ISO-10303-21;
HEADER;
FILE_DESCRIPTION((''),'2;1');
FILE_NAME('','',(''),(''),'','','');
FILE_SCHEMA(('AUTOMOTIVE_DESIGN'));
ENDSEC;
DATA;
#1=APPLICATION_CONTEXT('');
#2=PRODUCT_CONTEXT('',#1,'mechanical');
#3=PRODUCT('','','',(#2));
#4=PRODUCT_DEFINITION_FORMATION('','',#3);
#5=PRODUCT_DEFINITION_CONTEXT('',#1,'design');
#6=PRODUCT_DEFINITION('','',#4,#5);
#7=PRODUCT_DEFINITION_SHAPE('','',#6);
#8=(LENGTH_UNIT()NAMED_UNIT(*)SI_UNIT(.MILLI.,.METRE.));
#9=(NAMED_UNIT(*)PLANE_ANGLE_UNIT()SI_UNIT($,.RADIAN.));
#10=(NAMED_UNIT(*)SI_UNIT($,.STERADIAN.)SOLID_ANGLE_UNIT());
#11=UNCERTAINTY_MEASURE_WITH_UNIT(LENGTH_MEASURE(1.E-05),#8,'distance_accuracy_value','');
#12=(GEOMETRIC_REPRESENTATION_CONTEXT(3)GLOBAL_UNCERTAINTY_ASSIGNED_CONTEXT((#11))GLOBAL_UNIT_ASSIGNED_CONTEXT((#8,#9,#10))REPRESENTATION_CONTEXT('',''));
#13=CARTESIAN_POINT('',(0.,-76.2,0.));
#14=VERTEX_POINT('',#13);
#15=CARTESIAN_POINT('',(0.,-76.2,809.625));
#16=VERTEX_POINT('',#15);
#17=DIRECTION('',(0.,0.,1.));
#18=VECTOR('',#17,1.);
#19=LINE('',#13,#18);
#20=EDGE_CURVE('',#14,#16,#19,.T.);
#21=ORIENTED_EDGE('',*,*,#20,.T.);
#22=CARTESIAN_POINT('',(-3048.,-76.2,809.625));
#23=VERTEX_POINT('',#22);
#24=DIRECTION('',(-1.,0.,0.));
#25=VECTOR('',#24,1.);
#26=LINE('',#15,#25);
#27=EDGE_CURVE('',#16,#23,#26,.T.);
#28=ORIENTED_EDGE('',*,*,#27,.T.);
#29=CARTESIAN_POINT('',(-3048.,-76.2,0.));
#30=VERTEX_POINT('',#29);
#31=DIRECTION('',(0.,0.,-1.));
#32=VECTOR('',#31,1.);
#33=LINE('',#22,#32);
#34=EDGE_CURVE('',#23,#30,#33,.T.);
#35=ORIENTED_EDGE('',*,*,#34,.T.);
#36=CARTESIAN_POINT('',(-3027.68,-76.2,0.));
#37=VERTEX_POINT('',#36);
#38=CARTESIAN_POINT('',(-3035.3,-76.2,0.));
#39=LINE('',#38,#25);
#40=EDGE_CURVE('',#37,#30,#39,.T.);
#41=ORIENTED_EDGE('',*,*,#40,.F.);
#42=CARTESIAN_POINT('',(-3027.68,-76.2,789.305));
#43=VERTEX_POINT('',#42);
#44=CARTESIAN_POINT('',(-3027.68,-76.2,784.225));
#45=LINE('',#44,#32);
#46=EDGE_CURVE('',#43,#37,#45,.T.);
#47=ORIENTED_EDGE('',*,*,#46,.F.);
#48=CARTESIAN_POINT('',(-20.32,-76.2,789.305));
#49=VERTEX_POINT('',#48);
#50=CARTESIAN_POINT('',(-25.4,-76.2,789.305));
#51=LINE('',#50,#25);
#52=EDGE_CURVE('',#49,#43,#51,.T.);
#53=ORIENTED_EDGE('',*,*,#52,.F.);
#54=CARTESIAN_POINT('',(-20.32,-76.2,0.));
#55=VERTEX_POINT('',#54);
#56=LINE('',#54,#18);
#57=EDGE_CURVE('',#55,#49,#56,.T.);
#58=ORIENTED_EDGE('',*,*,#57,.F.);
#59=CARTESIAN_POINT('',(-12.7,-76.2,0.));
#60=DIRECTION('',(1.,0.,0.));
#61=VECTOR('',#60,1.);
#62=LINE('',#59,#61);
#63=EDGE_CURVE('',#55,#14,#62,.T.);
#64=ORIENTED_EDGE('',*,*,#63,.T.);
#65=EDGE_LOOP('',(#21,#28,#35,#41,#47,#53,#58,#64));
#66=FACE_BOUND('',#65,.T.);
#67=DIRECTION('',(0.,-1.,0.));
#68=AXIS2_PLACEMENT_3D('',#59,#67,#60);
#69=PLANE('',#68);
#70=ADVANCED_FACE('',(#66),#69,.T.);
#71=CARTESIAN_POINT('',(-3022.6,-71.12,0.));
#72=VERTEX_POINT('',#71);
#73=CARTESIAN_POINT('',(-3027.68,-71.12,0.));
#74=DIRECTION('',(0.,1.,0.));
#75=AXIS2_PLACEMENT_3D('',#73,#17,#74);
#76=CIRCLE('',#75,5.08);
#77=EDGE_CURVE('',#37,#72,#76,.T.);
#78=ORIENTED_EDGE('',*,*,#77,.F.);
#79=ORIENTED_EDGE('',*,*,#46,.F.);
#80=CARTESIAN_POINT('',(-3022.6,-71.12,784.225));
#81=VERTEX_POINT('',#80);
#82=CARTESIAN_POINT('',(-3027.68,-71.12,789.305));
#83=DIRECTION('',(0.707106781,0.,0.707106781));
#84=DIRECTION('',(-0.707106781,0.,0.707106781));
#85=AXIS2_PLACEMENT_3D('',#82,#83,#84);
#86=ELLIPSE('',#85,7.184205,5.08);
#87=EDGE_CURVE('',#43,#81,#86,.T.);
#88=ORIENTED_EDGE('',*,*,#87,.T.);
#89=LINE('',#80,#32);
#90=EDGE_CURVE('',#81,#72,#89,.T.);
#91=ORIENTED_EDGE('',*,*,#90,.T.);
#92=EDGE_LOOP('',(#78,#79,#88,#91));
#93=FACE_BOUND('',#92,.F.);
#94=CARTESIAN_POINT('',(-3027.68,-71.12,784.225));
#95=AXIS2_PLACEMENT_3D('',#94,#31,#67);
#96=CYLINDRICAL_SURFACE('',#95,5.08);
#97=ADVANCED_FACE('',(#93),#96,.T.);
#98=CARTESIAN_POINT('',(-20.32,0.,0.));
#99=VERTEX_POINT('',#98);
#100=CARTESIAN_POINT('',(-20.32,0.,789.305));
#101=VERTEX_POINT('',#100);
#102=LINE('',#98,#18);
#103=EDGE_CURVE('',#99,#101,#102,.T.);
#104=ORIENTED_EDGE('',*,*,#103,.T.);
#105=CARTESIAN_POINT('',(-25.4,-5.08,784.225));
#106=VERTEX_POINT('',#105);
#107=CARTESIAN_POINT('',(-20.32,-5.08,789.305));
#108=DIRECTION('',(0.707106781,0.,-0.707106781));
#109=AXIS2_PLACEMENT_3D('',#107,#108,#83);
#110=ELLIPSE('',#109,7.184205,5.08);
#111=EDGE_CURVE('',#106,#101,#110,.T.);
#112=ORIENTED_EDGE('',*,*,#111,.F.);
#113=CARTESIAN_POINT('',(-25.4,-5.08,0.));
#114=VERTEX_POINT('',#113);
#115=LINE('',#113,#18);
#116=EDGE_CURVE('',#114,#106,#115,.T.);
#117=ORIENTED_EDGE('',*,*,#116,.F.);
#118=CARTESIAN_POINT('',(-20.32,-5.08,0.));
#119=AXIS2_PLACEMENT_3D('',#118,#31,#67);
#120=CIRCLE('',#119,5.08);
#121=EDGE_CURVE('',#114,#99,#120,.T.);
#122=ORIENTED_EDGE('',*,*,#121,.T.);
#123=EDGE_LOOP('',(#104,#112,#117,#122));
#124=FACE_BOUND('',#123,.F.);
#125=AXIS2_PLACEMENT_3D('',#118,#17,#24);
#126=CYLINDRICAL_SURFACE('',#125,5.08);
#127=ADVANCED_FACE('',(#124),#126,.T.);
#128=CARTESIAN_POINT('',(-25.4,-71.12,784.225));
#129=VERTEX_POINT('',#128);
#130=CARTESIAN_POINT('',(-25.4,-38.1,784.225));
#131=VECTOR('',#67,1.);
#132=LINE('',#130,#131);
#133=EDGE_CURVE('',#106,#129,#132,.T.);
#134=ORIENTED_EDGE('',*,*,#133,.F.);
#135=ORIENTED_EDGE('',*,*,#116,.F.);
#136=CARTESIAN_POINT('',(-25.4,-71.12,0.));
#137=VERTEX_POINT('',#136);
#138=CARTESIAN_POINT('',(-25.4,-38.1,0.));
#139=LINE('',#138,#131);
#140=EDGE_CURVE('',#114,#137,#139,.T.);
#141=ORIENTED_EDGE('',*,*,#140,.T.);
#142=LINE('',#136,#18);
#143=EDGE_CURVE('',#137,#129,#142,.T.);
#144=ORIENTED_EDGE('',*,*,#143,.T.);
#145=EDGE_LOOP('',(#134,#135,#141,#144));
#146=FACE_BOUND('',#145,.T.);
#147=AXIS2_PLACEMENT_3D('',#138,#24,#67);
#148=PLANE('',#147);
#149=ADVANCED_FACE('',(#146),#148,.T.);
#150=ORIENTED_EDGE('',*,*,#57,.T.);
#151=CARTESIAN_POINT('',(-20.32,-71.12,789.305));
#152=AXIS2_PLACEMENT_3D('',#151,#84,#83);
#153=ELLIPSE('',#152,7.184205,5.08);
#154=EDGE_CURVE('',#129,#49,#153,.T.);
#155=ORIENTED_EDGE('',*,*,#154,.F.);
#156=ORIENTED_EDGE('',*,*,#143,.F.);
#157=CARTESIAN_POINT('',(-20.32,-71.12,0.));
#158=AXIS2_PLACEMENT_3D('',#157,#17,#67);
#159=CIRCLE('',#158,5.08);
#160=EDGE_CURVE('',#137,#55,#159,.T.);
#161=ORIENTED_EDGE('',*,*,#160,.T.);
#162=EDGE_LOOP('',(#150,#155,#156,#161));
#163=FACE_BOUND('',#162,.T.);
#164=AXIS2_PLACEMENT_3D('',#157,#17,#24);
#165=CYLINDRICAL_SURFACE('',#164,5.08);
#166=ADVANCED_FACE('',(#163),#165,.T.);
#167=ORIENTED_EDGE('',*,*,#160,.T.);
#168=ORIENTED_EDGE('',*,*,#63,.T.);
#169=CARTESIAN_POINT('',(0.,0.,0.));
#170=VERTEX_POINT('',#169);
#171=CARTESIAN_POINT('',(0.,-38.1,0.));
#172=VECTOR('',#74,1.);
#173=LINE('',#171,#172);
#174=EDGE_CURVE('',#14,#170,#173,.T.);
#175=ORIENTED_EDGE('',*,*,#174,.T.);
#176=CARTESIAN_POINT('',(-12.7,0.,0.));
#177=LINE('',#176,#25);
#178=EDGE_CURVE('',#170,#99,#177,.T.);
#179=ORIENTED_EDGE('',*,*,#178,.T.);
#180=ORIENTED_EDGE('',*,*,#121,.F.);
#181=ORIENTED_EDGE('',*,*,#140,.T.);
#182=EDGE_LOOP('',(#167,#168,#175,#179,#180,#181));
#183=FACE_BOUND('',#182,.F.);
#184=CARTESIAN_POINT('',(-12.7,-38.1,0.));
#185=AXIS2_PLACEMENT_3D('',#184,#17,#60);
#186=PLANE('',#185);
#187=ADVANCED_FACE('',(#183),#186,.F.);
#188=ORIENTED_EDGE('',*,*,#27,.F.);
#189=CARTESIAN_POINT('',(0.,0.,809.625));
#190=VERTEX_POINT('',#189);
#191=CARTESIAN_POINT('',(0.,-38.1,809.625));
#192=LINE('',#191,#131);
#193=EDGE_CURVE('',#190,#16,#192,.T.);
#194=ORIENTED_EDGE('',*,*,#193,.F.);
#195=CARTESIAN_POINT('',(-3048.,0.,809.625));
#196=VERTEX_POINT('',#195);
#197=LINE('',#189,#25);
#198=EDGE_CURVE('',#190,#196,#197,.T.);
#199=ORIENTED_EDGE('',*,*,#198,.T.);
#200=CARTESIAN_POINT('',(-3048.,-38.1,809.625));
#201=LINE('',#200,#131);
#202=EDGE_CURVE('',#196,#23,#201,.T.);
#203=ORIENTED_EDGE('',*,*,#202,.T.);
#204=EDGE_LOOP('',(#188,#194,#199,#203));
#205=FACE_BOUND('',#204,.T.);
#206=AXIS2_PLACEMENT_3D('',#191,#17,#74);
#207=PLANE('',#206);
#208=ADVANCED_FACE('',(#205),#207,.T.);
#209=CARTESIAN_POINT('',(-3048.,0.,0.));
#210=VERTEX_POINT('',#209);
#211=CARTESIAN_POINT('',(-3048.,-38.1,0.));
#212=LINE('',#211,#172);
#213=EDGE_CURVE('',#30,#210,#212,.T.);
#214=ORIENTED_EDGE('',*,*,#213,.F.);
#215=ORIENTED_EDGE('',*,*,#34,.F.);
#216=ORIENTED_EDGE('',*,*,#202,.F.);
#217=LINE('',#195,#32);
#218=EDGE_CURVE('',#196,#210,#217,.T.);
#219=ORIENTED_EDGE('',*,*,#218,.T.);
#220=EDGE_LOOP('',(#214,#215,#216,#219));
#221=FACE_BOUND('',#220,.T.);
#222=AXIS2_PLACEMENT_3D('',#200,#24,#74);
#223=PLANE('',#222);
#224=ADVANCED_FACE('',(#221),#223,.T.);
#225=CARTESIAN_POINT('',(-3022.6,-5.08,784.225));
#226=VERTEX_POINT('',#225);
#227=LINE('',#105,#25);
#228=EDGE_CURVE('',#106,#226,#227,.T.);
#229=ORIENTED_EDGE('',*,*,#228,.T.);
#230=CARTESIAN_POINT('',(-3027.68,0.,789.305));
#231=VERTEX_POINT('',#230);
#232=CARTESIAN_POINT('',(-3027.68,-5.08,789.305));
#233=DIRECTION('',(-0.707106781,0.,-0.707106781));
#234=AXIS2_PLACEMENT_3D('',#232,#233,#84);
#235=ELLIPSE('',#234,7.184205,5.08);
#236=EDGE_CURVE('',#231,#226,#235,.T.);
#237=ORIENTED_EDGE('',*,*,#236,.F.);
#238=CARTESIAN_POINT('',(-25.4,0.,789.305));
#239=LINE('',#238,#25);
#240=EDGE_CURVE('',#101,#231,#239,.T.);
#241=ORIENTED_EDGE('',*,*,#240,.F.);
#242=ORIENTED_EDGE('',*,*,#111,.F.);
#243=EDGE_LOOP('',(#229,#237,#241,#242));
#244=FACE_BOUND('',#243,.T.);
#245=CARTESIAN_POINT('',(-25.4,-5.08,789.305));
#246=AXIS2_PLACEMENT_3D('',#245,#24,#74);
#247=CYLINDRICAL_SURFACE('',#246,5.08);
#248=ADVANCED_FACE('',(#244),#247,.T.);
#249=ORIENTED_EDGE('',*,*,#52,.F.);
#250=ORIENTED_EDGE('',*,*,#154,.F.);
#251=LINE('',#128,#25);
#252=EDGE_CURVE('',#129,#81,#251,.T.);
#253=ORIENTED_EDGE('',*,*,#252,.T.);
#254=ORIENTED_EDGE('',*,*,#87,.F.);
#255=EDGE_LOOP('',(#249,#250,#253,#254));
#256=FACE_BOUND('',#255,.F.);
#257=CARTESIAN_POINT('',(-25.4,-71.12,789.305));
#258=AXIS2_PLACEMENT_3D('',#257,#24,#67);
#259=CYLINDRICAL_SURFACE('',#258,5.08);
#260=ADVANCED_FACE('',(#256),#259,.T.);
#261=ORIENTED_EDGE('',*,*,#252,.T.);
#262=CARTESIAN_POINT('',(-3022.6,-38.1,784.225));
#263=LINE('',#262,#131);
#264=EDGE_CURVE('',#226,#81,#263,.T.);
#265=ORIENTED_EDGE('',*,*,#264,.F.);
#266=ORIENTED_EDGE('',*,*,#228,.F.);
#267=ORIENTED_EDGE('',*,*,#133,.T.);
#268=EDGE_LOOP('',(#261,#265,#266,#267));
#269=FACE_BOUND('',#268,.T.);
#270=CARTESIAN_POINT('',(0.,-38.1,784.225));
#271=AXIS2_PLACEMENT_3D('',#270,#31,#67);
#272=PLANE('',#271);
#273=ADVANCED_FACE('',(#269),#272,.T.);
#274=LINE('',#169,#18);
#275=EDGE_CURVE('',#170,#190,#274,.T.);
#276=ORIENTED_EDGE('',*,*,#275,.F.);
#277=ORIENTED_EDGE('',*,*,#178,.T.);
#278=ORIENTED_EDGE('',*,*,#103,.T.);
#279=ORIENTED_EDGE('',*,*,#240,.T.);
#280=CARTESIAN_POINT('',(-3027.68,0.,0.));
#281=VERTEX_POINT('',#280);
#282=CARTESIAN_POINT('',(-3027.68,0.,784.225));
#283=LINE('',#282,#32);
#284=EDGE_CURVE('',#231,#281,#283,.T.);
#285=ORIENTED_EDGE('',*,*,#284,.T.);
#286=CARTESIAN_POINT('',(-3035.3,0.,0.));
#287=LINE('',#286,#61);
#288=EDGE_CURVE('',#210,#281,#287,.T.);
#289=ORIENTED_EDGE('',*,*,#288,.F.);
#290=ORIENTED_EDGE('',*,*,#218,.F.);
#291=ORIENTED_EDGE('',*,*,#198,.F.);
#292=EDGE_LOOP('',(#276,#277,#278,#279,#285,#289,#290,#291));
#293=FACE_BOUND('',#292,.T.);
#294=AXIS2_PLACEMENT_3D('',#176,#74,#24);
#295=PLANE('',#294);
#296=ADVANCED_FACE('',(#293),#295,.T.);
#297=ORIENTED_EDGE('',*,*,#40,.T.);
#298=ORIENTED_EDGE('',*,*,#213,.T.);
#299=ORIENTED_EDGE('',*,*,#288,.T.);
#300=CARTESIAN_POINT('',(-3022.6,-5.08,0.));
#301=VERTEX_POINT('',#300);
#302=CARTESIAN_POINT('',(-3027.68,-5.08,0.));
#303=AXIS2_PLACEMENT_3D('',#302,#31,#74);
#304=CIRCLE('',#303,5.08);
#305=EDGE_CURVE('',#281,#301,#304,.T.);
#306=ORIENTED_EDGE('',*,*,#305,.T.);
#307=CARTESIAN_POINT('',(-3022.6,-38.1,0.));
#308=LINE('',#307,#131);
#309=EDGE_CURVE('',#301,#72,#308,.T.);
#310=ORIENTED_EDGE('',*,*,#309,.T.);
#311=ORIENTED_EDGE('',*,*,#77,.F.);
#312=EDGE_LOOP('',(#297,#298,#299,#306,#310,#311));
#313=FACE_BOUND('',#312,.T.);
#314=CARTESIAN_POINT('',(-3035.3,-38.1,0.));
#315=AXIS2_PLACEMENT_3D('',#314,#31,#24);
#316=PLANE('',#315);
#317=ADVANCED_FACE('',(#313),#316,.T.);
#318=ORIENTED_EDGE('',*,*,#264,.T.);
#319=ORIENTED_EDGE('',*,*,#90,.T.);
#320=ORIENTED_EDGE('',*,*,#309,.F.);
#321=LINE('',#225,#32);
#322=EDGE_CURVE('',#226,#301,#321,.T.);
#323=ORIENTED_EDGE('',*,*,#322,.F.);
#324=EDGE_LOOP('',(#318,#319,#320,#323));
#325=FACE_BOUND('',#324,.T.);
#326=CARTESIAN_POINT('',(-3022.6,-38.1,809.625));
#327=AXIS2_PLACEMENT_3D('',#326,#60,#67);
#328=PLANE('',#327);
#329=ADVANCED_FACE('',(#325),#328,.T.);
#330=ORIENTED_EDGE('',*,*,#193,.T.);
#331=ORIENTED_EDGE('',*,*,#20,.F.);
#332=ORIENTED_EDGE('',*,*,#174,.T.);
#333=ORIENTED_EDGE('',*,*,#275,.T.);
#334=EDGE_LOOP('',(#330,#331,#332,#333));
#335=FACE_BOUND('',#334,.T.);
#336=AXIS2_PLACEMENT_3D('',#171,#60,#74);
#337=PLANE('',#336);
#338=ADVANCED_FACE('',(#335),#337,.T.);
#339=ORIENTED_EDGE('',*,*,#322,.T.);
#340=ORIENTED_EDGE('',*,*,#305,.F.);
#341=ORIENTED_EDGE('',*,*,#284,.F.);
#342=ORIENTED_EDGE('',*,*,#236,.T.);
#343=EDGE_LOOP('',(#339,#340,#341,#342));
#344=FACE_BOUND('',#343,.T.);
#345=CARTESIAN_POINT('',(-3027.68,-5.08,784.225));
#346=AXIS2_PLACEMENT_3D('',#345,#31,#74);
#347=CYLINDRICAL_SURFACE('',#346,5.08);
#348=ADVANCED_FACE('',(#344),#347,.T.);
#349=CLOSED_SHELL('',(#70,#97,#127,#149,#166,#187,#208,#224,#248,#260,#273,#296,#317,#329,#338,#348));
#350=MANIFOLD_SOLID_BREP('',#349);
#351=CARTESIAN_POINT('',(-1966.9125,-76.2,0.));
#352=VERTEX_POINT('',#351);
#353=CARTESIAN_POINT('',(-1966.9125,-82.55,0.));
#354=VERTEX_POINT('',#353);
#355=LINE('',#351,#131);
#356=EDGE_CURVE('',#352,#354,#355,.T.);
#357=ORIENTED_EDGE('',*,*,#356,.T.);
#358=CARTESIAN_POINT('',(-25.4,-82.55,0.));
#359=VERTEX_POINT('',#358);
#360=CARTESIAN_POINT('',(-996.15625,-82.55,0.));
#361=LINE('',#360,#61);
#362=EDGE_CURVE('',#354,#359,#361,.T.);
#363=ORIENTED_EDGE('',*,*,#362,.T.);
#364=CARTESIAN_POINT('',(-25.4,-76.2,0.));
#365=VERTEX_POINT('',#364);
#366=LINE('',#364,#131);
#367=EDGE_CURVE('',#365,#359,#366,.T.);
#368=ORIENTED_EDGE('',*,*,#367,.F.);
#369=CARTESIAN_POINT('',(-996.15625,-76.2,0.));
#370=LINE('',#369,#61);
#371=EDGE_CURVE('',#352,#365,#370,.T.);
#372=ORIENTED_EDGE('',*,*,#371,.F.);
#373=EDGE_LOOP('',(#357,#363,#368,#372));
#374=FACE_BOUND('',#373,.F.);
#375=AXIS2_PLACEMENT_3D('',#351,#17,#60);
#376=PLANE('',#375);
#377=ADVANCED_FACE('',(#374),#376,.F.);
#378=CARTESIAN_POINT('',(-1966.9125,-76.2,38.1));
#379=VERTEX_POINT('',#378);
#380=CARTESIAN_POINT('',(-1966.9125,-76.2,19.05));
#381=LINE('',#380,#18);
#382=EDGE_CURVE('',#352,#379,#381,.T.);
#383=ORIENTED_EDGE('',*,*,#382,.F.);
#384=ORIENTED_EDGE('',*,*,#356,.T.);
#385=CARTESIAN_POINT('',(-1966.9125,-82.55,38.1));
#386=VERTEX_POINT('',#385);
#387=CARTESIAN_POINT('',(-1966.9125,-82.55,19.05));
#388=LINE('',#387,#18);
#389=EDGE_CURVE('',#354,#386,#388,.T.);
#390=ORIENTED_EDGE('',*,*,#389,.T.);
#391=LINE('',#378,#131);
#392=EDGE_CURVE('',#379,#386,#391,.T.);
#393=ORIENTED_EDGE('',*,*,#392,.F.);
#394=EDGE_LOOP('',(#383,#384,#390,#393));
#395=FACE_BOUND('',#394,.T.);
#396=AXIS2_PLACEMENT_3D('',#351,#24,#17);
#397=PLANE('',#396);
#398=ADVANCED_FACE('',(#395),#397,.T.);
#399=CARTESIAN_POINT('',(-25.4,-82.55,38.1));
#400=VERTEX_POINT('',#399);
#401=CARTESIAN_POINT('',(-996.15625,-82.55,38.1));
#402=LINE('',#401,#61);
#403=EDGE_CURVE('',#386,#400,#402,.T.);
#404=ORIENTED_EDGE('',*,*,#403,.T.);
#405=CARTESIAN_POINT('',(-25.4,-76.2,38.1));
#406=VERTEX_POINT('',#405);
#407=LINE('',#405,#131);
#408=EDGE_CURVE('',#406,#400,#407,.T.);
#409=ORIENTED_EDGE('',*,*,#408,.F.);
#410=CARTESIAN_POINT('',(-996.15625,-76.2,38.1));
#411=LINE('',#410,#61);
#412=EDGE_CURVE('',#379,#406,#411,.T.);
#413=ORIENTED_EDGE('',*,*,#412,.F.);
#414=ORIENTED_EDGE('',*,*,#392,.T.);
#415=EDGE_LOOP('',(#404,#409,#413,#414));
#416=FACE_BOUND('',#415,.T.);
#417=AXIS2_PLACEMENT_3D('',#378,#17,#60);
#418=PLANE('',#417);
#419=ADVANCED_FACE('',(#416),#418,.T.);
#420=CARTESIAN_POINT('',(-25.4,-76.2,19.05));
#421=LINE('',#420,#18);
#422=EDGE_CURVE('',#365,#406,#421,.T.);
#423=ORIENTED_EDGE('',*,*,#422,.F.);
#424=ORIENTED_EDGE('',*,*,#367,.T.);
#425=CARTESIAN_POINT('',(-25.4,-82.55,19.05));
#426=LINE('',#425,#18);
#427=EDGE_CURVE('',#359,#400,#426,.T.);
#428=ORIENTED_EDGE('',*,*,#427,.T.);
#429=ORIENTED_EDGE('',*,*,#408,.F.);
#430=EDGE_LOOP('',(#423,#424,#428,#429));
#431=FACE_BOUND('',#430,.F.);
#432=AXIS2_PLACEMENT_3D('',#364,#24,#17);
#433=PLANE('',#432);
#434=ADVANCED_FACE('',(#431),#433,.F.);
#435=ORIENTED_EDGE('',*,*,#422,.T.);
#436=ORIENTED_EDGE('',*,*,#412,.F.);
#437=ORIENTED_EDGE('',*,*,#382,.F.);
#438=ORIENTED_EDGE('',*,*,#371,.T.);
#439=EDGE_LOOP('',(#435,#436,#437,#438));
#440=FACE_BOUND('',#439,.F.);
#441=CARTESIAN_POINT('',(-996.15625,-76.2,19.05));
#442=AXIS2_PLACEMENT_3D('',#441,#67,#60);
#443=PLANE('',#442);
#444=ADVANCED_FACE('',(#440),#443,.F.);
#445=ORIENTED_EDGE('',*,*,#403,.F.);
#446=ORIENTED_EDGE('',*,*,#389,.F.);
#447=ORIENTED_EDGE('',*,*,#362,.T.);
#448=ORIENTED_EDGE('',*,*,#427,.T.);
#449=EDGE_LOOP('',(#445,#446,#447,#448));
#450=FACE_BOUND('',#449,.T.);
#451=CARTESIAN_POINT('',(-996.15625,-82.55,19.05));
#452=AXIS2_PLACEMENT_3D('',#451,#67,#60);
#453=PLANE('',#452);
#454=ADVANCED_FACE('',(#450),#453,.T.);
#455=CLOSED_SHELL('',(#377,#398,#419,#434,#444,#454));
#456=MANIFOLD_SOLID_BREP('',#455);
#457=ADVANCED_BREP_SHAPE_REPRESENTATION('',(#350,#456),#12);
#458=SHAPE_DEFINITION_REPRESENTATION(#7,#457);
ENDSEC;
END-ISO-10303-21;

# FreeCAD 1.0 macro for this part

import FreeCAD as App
import Part
import Sketcher
Q = App.Units.Quantity


def edges_at(feature, points):
    """Names of the edges that pass closest to the given points."""
    edges = feature.Shape.Edges
    near = lambda p: min(range(len(edges)), key=lambda i: edges[i].distToShape(Part.Vertex(*p))[0])
    return sorted({f"Edge{near(p) + 1}" for p in points})


def add_polygon(sketch, points):
    """Adds a closed chain of lines whose ends are joined by coincident constraints."""
    first, n = sketch.GeometryCount, len(points)
    for a, b in zip(points, points[1:] + points[:1]):
        sketch.addGeometry(Part.LineSegment(App.Vector(*a, 0), App.Vector(*b, 0)), False)
    for i in range(n):
        sketch.addConstraint(Sketcher.Constraint("Coincident", first + i, 2, first + (i + 1) % n, 1))

doc = App.newDocument("Part")
body = doc.addObject("PartDesign::Body", "Body")

# Sketch on XY plane
sketch1 = body.newObject("Sketcher::SketchObject", "Sketch")
sketch1.AttachmentSupport = (doc.getObject("XY_Plane"), [""])
sketch1.MapMode = "FlatFace"
add_polygon(sketch1, [(-25, 0), (-25, -76), (0, -76), (0, 0)])  # lines 0-3
sketch1.addConstraint(Sketcher.Constraint("Vertical", 0))
sketch1.addConstraint(Sketcher.Constraint("Horizontal", 1))
sketch1.addConstraint(Sketcher.Constraint("Vertical", 2))
sketch1.addConstraint(Sketcher.Constraint("Horizontal", 3))
sketch1.addConstraint(Sketcher.Constraint("Coincident", 2, 2, -1, 1))
sketch1.addConstraint(Sketcher.Constraint("DistanceX", 1, 1, 1, 2, Q("1 in")))
sketch1.addConstraint(Sketcher.Constraint("DistanceY", 0, 2, 0, 1, Q("3 in")))

# Sketch on XZ plane
sketch2 = body.newObject("Sketcher::SketchObject", "Sketch001")
sketch2.AttachmentSupport = (doc.getObject("XZ_Plane"), [""])
sketch2.MapMode = "FlatFace"
sketch2.addGeometry(Part.LineSegment(App.Vector(0, 0, 0), App.Vector(0, 810, 0)), False)
sketch2.addGeometry(Part.LineSegment(App.Vector(0, 810, 0), App.Vector(-3048, 810, 0)), False)
sketch2.addGeometry(Part.LineSegment(App.Vector(-3048, 810, 0), App.Vector(-3048, 0, 0)), False)
sketch2.addConstraint(Sketcher.Constraint("Coincident", 0, 2, 1, 1))
sketch2.addConstraint(Sketcher.Constraint("Coincident", 1, 2, 2, 1))
sketch2.addConstraint(Sketcher.Constraint("Vertical", 0))
sketch2.addConstraint(Sketcher.Constraint("Horizontal", 1))
sketch2.addConstraint(Sketcher.Constraint("Vertical", 2))
sketch2.addConstraint(Sketcher.Constraint("Coincident", 0, 1, -1, 1))
sketch2.addConstraint(Sketcher.Constraint("PointOnObject", 2, 2, -1))
sketch2.addConstraint(Sketcher.Constraint("DistanceX", 1, 2, 1, 1, Q("120 in")))
sketch2.addConstraint(Sketcher.Constraint("DistanceY", 0, 1, 0, 2, Q("31.875 in")))
doc.recompute()

additivepipe = body.newObject("PartDesign::AdditivePipe", "AdditivePipe")
additivepipe.Profile = sketch1
additivepipe.Spine = (sketch2, ["Edge1", "Edge2", "Edge3"])
additivepipe.Transition = "Right corner"
doc.recompute()

fillet = body.newObject("PartDesign::Fillet", "Fillet")
fillet.Base = (additivepipe, edges_at(additivepipe, [
    (-25.4, 0, 392.113),
    (-25.4, -76.2, 392.113),
    (-1524, 0, 784.225),
    (-1524, -76.2, 784.225),
    (-3022.6, 0, 392.113),
    (-3022.6, -76.2, 392.113),
]))
fillet.Radius = Q("0.2 in")
body2 = doc.addObject("PartDesign::Body", "Body001")

# Sketch on XZ plane
sketch3 = body2.newObject("Sketcher::SketchObject", "Sketch002")
sketch3.AttachmentSupport = (doc.getObject("XZ_Plane001"), [""])
sketch3.MapMode = "FlatFace"
sketch3.AttachmentOffset = App.Placement(App.Vector(0, 0, 3 * 25.4), App.Rotation())
add_polygon(sketch3, [(-1967, 38), (-1967, 0), (-25, 0), (-25, 38)])  # lines 0-3
sketch3.addConstraint(Sketcher.Constraint("Vertical", 0))
sketch3.addConstraint(Sketcher.Constraint("Horizontal", 1))
sketch3.addConstraint(Sketcher.Constraint("Vertical", 2))
sketch3.addConstraint(Sketcher.Constraint("Horizontal", 3))
sketch3.addConstraint(Sketcher.Constraint("PointOnObject", 0, 2, -1))
sketch3.addConstraint(Sketcher.Constraint("DistanceY", 0, 2, 0, 1, Q("1.5 in")))
sketch3.addConstraint(Sketcher.Constraint("DistanceX", 1, 2, -1, 1, Q("1 in")))
sketch3.addConstraint(Sketcher.Constraint("DistanceX", 1, 1, 1, 2, Q("76.4375 in")))
pad1 = body2.newObject("PartDesign::Pad", "Pad")
pad1.Profile = sketch3
pad1.Length = Q("0.25 in")

doc.recompute()
